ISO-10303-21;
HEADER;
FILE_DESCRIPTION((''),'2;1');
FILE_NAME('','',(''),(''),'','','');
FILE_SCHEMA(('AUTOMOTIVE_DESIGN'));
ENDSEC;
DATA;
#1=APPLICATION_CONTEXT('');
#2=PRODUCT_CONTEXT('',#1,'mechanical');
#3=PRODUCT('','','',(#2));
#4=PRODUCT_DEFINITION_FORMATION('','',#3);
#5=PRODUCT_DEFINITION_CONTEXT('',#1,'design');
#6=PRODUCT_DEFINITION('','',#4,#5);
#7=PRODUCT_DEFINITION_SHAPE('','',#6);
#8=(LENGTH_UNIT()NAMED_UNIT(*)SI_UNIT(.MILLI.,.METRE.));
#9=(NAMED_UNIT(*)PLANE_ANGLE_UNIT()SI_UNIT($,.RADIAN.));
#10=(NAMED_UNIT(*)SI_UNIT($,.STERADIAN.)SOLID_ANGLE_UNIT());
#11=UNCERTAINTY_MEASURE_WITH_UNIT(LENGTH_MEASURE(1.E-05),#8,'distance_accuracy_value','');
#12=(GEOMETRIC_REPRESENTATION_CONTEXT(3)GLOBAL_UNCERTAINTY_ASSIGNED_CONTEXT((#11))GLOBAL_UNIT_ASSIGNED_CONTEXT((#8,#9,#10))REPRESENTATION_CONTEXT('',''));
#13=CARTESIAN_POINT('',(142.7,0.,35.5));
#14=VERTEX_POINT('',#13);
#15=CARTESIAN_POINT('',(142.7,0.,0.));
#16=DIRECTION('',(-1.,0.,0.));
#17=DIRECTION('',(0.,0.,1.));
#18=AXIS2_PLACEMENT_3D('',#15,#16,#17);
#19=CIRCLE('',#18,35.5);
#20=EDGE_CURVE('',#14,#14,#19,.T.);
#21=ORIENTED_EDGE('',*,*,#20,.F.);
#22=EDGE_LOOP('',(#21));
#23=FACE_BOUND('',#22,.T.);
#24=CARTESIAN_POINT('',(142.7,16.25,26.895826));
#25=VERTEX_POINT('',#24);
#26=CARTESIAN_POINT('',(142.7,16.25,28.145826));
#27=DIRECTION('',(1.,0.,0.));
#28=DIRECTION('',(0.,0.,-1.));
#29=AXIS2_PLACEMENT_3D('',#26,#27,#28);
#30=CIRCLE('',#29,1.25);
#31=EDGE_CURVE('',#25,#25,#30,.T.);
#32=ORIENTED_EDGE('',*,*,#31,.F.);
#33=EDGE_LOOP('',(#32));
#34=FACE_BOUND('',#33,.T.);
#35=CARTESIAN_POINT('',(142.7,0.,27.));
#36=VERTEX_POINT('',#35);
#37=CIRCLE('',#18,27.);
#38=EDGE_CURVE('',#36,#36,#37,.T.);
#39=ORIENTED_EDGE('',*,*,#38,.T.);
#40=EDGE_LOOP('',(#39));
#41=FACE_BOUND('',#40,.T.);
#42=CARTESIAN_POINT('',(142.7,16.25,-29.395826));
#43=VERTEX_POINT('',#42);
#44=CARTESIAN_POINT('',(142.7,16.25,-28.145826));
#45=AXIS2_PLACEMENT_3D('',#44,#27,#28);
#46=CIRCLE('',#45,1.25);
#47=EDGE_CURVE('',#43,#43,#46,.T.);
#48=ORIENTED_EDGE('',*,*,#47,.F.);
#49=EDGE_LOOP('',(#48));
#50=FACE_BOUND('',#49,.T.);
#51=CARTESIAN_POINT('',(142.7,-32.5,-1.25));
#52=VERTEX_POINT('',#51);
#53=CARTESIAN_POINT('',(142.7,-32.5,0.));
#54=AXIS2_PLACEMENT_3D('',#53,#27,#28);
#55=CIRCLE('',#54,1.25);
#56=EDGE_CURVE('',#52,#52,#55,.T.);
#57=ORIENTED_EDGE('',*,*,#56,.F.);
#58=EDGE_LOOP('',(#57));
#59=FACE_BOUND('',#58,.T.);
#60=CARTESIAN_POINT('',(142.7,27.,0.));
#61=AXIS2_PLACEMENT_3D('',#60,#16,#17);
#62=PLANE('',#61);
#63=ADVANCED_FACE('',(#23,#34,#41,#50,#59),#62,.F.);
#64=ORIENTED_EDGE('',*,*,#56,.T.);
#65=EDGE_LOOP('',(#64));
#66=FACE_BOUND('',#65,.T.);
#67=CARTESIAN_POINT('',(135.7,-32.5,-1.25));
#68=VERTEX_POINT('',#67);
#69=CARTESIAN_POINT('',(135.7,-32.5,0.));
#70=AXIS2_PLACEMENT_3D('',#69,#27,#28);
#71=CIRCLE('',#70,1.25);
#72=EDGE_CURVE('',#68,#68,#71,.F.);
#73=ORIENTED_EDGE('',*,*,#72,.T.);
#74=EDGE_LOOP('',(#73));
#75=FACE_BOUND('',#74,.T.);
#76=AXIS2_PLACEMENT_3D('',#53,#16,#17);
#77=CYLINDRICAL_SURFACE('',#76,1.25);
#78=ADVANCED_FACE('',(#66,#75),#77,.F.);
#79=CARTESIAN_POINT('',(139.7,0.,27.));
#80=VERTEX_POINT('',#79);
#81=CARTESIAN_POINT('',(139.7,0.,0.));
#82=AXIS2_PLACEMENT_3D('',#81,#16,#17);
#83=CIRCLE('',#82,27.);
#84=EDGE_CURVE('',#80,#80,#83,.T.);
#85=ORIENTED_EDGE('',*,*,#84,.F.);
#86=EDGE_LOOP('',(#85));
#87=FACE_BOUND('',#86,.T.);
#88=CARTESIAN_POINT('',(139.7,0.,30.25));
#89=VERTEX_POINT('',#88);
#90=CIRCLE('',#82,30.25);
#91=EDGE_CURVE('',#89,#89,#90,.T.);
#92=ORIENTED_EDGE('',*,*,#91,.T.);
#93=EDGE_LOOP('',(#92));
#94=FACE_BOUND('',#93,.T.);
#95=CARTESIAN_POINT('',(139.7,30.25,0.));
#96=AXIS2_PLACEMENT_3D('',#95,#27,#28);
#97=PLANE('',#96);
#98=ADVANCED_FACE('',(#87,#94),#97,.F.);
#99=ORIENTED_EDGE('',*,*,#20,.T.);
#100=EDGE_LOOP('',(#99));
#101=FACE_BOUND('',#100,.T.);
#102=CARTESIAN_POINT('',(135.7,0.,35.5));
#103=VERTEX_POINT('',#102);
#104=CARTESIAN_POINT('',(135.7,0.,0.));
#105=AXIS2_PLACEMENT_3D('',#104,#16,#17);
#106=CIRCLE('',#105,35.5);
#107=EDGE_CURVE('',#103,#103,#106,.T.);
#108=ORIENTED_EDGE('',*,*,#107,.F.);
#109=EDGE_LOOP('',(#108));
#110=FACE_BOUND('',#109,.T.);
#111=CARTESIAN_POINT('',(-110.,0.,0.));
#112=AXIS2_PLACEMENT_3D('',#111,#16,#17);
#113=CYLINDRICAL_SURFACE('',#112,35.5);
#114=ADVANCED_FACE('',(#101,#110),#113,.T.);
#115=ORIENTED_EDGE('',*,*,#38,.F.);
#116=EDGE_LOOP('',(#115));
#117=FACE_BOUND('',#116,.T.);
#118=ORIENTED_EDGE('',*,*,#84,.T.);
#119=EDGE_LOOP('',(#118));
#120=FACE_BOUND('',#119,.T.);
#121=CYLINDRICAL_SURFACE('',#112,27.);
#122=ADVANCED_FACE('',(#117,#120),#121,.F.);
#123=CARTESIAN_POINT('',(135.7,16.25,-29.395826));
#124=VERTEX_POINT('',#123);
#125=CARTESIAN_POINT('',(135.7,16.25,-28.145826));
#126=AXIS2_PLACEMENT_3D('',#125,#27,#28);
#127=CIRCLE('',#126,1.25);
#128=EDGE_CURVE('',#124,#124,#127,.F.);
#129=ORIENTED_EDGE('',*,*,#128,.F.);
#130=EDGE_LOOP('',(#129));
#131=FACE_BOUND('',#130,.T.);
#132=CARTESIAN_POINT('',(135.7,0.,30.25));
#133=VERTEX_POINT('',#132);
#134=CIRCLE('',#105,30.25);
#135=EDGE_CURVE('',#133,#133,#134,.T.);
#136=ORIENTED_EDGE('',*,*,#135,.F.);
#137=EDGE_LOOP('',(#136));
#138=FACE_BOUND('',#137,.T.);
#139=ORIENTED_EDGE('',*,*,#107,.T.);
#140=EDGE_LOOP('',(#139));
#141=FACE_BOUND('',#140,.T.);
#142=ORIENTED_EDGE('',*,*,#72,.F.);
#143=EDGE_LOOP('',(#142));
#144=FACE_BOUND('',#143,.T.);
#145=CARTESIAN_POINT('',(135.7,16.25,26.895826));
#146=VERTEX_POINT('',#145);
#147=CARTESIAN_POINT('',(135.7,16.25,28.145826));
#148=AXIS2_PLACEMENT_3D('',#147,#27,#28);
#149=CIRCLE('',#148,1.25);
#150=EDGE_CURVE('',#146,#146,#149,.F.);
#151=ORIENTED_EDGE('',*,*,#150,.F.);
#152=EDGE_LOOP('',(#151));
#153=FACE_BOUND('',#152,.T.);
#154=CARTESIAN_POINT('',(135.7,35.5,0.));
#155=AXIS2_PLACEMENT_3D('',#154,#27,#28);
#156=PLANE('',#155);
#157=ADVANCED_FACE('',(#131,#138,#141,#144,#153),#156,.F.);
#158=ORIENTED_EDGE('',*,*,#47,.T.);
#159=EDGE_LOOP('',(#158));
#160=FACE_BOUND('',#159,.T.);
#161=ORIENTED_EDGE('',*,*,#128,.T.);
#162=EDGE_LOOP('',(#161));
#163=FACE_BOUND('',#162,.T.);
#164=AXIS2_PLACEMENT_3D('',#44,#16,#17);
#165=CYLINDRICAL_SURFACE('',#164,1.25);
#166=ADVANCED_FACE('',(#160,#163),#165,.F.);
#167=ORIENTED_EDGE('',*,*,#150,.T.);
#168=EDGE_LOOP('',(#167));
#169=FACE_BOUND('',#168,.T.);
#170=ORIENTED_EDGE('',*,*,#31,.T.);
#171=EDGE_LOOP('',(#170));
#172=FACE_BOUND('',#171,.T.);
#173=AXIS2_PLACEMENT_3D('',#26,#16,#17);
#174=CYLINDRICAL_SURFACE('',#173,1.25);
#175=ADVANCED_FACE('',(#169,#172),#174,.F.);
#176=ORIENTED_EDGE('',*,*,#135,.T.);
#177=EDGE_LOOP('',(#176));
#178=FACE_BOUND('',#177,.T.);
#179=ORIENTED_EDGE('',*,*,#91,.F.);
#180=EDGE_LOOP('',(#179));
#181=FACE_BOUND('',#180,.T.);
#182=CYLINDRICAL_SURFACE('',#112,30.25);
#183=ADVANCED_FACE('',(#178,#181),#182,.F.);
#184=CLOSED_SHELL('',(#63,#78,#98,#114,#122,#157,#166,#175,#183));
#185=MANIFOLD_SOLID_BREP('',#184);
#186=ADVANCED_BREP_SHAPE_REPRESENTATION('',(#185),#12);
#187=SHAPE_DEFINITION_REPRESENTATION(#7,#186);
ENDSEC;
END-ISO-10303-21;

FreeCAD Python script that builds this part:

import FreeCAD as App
import Part
import Sketcher
from FreeCAD import Vector

doc = App.newDocument("Part")
body = doc.addObject("PartDesign::Body", "Body")

# Sketch on XY plane
sketch1 = body.newObject("Sketcher::SketchObject", "Sketch")
sketch1.AttachmentSupport = (doc.getObject("XY_Plane"), [""])
sketch1.MapMode = "FlatFace"
sketch1.addGeometry(Part.LineSegment(Vector(135.7, 30.2, 0), Vector(139.7, 30.2, 0)), False)
sketch1.addGeometry(Part.LineSegment(Vector(139.7, 30.2, 0), Vector(139.7, 27, 0)), False)
sketch1.addGeometry(Part.LineSegment(Vector(139.7, 27, 0), Vector(142.7, 27, 0)), False)
sketch1.addGeometry(Part.LineSegment(Vector(142.7, 27, 0), Vector(142.7, 35.5, 0)), False)
sketch1.addGeometry(Part.LineSegment(Vector(142.7, 35.5, 0), Vector(135.7, 35.5, 0)), False)
sketch1.addGeometry(Part.LineSegment(Vector(135.7, 35.5, 0), Vector(135.7, 30.2, 0)), False)
sketch1.addConstraint(Sketcher.Constraint("Coincident", 0, 2, 1, 1))
sketch1.addConstraint(Sketcher.Constraint("Coincident", 1, 2, 2, 1))
sketch1.addConstraint(Sketcher.Constraint("Coincident", 2, 2, 3, 1))
sketch1.addConstraint(Sketcher.Constraint("Coincident", 3, 2, 4, 1))
sketch1.addConstraint(Sketcher.Constraint("Coincident", 4, 2, 5, 1))
sketch1.addConstraint(Sketcher.Constraint("Coincident", 5, 2, 0, 1))
sketch1.addConstraint(Sketcher.Constraint("Horizontal", 0))
sketch1.addConstraint(Sketcher.Constraint("Vertical", 1))
sketch1.addConstraint(Sketcher.Constraint("Horizontal", 2))
sketch1.addConstraint(Sketcher.Constraint("Vertical", 3))
sketch1.addConstraint(Sketcher.Constraint("Horizontal", 4))
sketch1.addConstraint(Sketcher.Constraint("Vertical", 5))
sketch1.addConstraint(Sketcher.Constraint("DistanceX", 0, 1, 0, 2, 4.0))
sketch1.addConstraint(Sketcher.Constraint("DistanceX", 2, 1, 2, 2, 3.0))
sketch1.addConstraint(Sketcher.Constraint("DistanceY", 3, 1, 3, 2, 8.5))
sketch1.addConstraint(Sketcher.Constraint("DistanceY", -1, 1, 1, 2, 27.0))
sketch1.addConstraint(Sketcher.Constraint("DistanceY", 1, 2, 1, 1, 3.25))
sketch1.addConstraint(Sketcher.Constraint("DistanceX", -1, 1, 0, 2, 139.7))
revolution = body.newObject("PartDesign::Revolution", "Revolution")
revolution.Profile = sketch1
revolution.ReferenceAxis = (sketch1, ["H_Axis"])
revolution.Angle = 360

# Sketch on YZ plane
sketch2 = body.newObject("Sketcher::SketchObject", "Sketch001")
sketch2.AttachmentSupport = (doc.getObject("YZ_Plane"), [""])
sketch2.MapMode = "FlatFace"
sketch2.addGeometry(Part.Circle(Vector(16.2, 28.1, 0), Vector(0, 0, 1), 1.2), False)
sketch2.addGeometry(Part.Circle(Vector(-32.5, 0, 0), Vector(0, 0, 1), 1.2), False)
sketch2.addGeometry(Part.Circle(Vector(16.2, -28.1, 0), Vector(0, 0, 1), 1.2), False)
sketch2.addConstraint(Sketcher.Constraint("Equal", 0, 1))
sketch2.addConstraint(Sketcher.Constraint("Equal", 1, 2))
sketch2.addConstraint(Sketcher.Constraint("Symmetric", 0, 3, 2, 3, -1))
sketch2.addConstraint(Sketcher.Constraint("PointOnObject", 1, 3, -1))
sketch2.addConstraint(Sketcher.Constraint("Diameter", 0, 2.5))
sketch2.addConstraint(Sketcher.Constraint("DistanceX", 1, 3, -1, 1, 32.5))
sketch2.addConstraint(Sketcher.Constraint("DistanceX", -1, 1, 0, 3, 16.25))
sketch2.addConstraint(Sketcher.Constraint("DistanceY", 2, 3, 0, 3, 56.291651))
pocket1 = body.newObject("PartDesign::Pocket", "Pocket")
pocket1.Profile = sketch2
pocket1.Type = "ThroughAll"
pocket1.Midplane = True

doc.recompute()
